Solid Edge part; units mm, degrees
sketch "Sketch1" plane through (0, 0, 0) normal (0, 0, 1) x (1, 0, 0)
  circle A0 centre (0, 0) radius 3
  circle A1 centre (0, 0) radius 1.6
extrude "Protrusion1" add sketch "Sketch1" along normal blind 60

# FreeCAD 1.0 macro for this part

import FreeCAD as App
import Part
import Sketcher

doc = App.newDocument("Part")
body = doc.addObject("PartDesign::Body", "Body")

# Sketch on XY plane
sketch1 = doc.addObject("Sketcher::SketchObject", "Sketch")
body.addObject(sketch1)
sketch1.AttachmentSupport = (doc.XY_Plane, [""])
sketch1.MapMode = "FlatFace"
sketch1.addGeometry([
    Part.Circle(App.Vector(0, 0, 0), App.Vector(0, 0, 1), 3),
    Part.Circle(App.Vector(0, 0, 0), App.Vector(0, 0, 1), 1.6),
], False)
sketch1.addConstraint([
    Sketcher.Constraint("Coincident", 0, 3, -1, 1),
    Sketcher.Constraint("Coincident", 1, 3, -1, 1),
    Sketcher.Constraint("Diameter", 0, 6.0),
    Sketcher.Constraint("Diameter", 1, 3.2),
])
pad1 = doc.addObject("PartDesign::Pad", "Pad")
body.addObject(pad1)
pad1.Profile = sketch1
pad1.Length = 60

doc.recompute()
